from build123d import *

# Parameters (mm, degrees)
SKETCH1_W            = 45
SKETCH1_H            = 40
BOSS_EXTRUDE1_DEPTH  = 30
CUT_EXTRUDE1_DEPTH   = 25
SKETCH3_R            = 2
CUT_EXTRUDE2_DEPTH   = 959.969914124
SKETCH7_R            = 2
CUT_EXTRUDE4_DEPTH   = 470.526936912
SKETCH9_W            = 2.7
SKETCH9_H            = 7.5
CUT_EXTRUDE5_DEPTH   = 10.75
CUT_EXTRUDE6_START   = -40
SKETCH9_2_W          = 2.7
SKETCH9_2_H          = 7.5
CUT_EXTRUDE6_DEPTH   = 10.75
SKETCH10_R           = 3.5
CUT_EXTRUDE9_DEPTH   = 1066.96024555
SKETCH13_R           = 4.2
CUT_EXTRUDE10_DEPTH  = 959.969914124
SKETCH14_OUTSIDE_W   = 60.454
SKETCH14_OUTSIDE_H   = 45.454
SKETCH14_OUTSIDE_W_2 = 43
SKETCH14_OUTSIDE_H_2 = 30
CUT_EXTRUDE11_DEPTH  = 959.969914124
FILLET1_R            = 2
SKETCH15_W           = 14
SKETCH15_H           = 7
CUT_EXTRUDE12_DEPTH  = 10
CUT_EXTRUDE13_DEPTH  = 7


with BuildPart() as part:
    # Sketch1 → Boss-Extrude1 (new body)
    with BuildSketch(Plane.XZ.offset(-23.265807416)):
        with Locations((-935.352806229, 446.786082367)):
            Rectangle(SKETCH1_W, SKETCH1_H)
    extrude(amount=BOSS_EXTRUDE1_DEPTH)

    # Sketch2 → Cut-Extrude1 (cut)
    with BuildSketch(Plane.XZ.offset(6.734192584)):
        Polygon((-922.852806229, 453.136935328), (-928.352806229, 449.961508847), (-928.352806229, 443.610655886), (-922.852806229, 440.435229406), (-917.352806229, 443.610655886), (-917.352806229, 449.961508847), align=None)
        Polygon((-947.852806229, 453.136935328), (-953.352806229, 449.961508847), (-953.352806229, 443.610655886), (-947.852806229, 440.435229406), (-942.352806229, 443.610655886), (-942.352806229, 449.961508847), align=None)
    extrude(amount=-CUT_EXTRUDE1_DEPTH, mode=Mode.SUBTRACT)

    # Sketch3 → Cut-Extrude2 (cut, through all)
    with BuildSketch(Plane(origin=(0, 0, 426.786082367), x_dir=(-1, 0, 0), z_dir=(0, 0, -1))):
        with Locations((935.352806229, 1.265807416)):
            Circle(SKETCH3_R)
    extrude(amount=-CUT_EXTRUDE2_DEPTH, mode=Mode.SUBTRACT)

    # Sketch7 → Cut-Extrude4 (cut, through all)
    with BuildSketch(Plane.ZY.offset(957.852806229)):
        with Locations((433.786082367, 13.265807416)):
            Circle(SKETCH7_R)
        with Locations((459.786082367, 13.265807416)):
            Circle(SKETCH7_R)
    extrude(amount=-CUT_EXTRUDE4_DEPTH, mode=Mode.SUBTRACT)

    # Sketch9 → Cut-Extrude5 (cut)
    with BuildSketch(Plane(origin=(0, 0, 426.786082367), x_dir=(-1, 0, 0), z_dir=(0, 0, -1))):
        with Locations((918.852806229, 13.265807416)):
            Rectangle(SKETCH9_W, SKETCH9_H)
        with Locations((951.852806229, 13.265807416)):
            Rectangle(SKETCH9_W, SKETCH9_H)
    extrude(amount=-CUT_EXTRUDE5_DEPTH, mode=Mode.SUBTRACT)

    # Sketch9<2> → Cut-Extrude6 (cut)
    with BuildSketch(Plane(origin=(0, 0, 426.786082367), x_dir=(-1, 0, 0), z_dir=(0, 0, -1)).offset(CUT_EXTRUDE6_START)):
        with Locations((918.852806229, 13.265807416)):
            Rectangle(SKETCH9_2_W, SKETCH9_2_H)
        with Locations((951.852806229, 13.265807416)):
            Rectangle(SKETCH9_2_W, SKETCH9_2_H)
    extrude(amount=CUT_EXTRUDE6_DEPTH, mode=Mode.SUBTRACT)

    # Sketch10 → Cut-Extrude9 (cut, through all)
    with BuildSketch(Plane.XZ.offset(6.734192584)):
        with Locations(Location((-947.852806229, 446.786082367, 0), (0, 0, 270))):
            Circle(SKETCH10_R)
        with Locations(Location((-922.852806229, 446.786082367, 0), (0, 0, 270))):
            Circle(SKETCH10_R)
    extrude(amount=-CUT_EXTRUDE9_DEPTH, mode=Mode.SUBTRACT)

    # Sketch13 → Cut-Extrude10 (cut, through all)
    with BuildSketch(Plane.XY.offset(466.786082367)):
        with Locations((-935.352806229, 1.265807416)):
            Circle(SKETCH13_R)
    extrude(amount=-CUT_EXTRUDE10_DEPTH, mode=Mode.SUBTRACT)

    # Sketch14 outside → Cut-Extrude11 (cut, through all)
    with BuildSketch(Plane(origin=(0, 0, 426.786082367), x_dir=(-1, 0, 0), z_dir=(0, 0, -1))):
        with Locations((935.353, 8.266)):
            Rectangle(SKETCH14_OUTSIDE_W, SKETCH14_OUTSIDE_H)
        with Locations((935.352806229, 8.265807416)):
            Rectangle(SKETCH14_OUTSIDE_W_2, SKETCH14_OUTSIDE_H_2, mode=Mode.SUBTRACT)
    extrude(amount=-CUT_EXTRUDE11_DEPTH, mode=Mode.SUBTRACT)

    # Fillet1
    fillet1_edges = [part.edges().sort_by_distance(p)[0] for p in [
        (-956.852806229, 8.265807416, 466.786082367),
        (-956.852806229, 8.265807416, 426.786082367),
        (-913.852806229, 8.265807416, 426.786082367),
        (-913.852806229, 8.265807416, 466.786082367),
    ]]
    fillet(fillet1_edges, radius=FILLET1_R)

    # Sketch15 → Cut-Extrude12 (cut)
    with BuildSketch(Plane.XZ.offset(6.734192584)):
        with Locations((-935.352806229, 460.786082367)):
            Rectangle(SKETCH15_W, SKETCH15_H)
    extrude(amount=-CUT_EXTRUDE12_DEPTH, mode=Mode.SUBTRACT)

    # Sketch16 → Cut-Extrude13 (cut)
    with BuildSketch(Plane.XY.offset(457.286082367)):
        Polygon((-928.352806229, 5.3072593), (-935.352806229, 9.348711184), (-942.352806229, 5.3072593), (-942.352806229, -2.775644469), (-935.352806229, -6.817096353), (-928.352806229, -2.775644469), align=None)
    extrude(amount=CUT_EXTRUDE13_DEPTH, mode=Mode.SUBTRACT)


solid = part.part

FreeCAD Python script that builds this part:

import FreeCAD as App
import Part
import Sketcher
Q = App.Units.Quantity


def edges_at(feature, points):
    """Names of the edges that pass closest to the given points."""
    edges = feature.Shape.Edges
    near = lambda p: min(range(len(edges)), key=lambda i: edges[i].distToShape(Part.Vertex(*p))[0])
    return sorted({f"Edge{near(p) + 1}" for p in points})


def add_polygon(sketch, points):
    """Adds a closed chain of lines whose ends are joined by coincident constraints."""
    first, n = sketch.GeometryCount, len(points)
    for a, b in zip(points, points[1:] + points[:1]):
        sketch.addGeometry(Part.LineSegment(App.Vector(*a, 0), App.Vector(*b, 0)), False)
    for i in range(n):
        sketch.addConstraint(Sketcher.Constraint("Coincident", first + i, 2, first + (i + 1) % n, 1))

doc = App.newDocument("Part")
params = doc.addObject("Spreadsheet::Sheet", "Params")
for row, (alias, value) in enumerate([
    ("sketch1_width", "45 mm"),
    ("sketch1_height", "40 mm"),
    ("pad1_length", "30 mm"),
    ("pocket1_length", "25 mm"),
    ("sketch3_diameter", "4 mm"),
    ("sketch4_diameter", "4 mm"),
    ("sketch5_width", "2.7 mm"),
    ("sketch5_height", "7.5 mm"),
    ("pocket4_length", "10.75 mm"),
    ("sketch6_width", "2.7 mm"),
    ("sketch6_height", "7.5 mm"),
    ("pocket5_length", "10.75 mm"),
    ("sketch7_diameter", "7 mm"),
    ("sketch8_diameter", "8.4 mm"),
    ("sketch9_width", "43 mm"),
    ("sketch9_height", "30 mm"),
    ("fillet_radius", "2 mm"),
    ("sketch10_width", "14 mm"),
    ("sketch10_height", "7 mm"),
    ("pocket9_length", "10 mm"),
    ("pocket10_length", "7 mm"),
], start=1):
    params.set(f"A{row}", alias)
    params.set(f"B{row}", "=" + value)
    params.setAlias(f"B{row}", alias)

body = doc.addObject("PartDesign::Body", "Body")

# Sketch on XZ plane
sketch1 = doc.addObject("Sketcher::SketchObject", "Sketch")
body.addObject(sketch1)
sketch1.AttachmentSupport = (doc.XZ_Plane, [""])
sketch1.MapMode = "FlatFace"
sketch1.AttachmentOffset = App.Placement(App.Vector(0, 0, -23.265807), App.Rotation())
add_polygon(sketch1, [(-958, 467), (-958, 427), (-913, 427), (-913, 467)])  # lines 0-3
sketch1.addConstraint([
    Sketcher.Constraint("Vertical", 0),
    Sketcher.Constraint("Horizontal", 1),
    Sketcher.Constraint("Vertical", 2),
    Sketcher.Constraint("Horizontal", 3),
    Sketcher.Constraint("DistanceX", 1, 1, 1, 2, Q("45 mm")),
    Sketcher.Constraint("DistanceY", 0, 2, 0, 1, Q("40 mm")),
    Sketcher.Constraint("DistanceX", 0, 2, -1, 1, Q("957.852806 mm")),
    Sketcher.Constraint("DistanceY", -1, 1, 0, 2, Q("426.786082 mm")),
])
sketch1.setExpression("Constraints[8]", "Params.sketch1_width")
sketch1.setExpression("Constraints[9]", "Params.sketch1_height")
pad1 = doc.addObject("PartDesign::Pad", "Pad")
body.addObject(pad1)
pad1.Profile = sketch1
pad1.setExpression("Length", "Params.pad1_length")

# Sketch on XZ plane
sketch2 = doc.addObject("Sketcher::SketchObject", "Sketch001")
body.addObject(sketch2)
sketch2.AttachmentSupport = (doc.XZ_Plane, [""])
sketch2.MapMode = "FlatFace"
sketch2.AttachmentOffset = App.Placement(App.Vector(0, 0, 6.734193), App.Rotation())
add_polygon(sketch2, [(-923, 453), (-928, 450), (-928, 444), (-923, 440), (-917, 444), (-917, 450)])  # lines 0-5
add_polygon(sketch2, [(-948, 453), (-953, 450), (-953, 444), (-948, 440), (-942, 444), (-942, 450)])  # lines 6-11
sketch2.addConstraint([
    Sketcher.Constraint("Vertical", 1),
    Sketcher.Constraint("Vertical", 4),
    Sketcher.Constraint("Vertical", 7),
    Sketcher.Constraint("Vertical", 10),
    Sketcher.Constraint("Parallel", 0, 3),
    Sketcher.Constraint("Parallel", 2, 5),
    Sketcher.Constraint("Parallel", 3, 6),
    Sketcher.Constraint("Parallel", 5, 8),
    Sketcher.Constraint("Parallel", 6, 9),
    Sketcher.Constraint("Parallel", 8, 11),
    Sketcher.Constraint("Horizontal", 1, 2, 3, 2),
    Sketcher.Constraint("Horizontal", 0, 2, 4, 2),
    Sketcher.Constraint("Horizontal", 4, 2, 6, 2),
    Sketcher.Constraint("Horizontal", 3, 2, 7, 2),
    Sketcher.Constraint("Horizontal", 2, 2, 8, 2),
    Sketcher.Constraint("Horizontal", 7, 2, 9, 2),
    Sketcher.Constraint("Horizontal", 6, 2, 10, 2),
    Sketcher.Constraint("Vertical", 2, 2, 5, 2),
    Sketcher.Constraint("Angle", 0, Q("-150 deg")),
    Sketcher.Constraint("DistanceX", 1, 2, 3, 2, Q("11 mm")),
    Sketcher.Constraint("DistanceX", 6, 2, 0, 2, Q("25 mm")),
    Sketcher.Constraint("DistanceY", 1, 2, 1, 1, Q("6.350853 mm")),
    Sketcher.Constraint("DistanceY", -1, 1, 0, 2, Q("449.961509 mm")),
    Sketcher.Constraint("DistanceX", 0, 2, -1, 1, Q("928.352806 mm")),
])
pocket1 = doc.addObject("PartDesign::Pocket", "Pocket")
body.addObject(pocket1)
pocket1.Profile = sketch2
pocket1.setExpression("Length", "Params.pocket1_length")

# Sketch on XY plane
sketch3 = doc.addObject("Sketcher::SketchObject", "Sketch002")
body.addObject(sketch3)
sketch3.AttachmentSupport = (doc.XY_Plane, [""])
sketch3.MapMode = "FlatFace"
sketch3.AttachmentOffset = App.Placement(App.Vector(0, 0, 426.786082), App.Rotation())
sketch3.addGeometry(Part.Circle(App.Vector(-935.4, 1.3, 0), App.Vector(0, 0, 1), 2), False)
sketch3.addConstraint([
    Sketcher.Constraint("Diameter", 0, Q("4 mm")),
    Sketcher.Constraint("DistanceX", 0, 3, -1, 1, Q("935.352806 mm")),
    Sketcher.Constraint("DistanceY", -1, 1, 0, 3, Q("1.265807 mm")),
])
sketch3.setExpression("Constraints[0]", "Params.sketch3_diameter")
pocket2 = doc.addObject("PartDesign::Pocket", "Pocket001")
body.addObject(pocket2)
pocket2.Profile = sketch3
pocket2.Type = "ThroughAll"
pocket2.Reversed = True

# Sketch on YZ plane
sketch4 = doc.addObject("Sketcher::SketchObject", "Sketch003")
body.addObject(sketch4)
sketch4.AttachmentSupport = (doc.YZ_Plane, [""])
sketch4.MapMode = "FlatFace"
sketch4.AttachmentOffset = App.Placement(App.Vector(0, 0, -957.852806), App.Rotation())
sketch4.addGeometry([
    Part.Circle(App.Vector(13.3, 433.8, 0), App.Vector(0, 0, 1), 2),
    Part.Circle(App.Vector(13.3, 459.8, 0), App.Vector(0, 0, 1), 2),
], False)
sketch4.addConstraint([
    Sketcher.Constraint("Equal", 0, 1),
    Sketcher.Constraint("Vertical", 0, 3, 1, 3),
    Sketcher.Constraint("Diameter", 0, Q("4 mm")),
    Sketcher.Constraint("DistanceY", 0, 3, 1, 3, Q("26 mm")),
    Sketcher.Constraint("DistanceX", -1, 1, 0, 3, Q("13.265807 mm")),
    Sketcher.Constraint("DistanceY", -1, 1, 0, 3, Q("433.786082 mm")),
])
sketch4.setExpression("Constraints[2]", "Params.sketch4_diameter")
pocket3 = doc.addObject("PartDesign::Pocket", "Pocket002")
body.addObject(pocket3)
pocket3.Profile = sketch4
pocket3.Type = "ThroughAll"
pocket3.Reversed = True

# Sketch on XY plane
sketch5 = doc.addObject("Sketcher::SketchObject", "Sketch004")
body.addObject(sketch5)
sketch5.AttachmentSupport = (doc.XY_Plane, [""])
sketch5.MapMode = "FlatFace"
sketch5.AttachmentOffset = App.Placement(App.Vector(0, 0, 426.786082), App.Rotation())
add_polygon(sketch5, [(-917.5, 17), (-917.5, 9.5), (-920.2, 9.5), (-920.2, 17)])  # lines 0-3
add_polygon(sketch5, [(-950.5, 17), (-950.5, 9.5), (-953.2, 9.5), (-953.2, 17)])  # lines 4-7
sketch5.addConstraint([
    Sketcher.Constraint("Vertical", 0),
    Sketcher.Constraint("Horizontal", 1),
    Sketcher.Constraint("Vertical", 2),
    Sketcher.Constraint("Horizontal", 3),
    Sketcher.Constraint("Vertical", 4),
    Sketcher.Constraint("Horizontal", 5),
    Sketcher.Constraint("Vertical", 6),
    Sketcher.Constraint("Horizontal", 7),
    Sketcher.Constraint("Horizontal", 1, 2, 4, 2),
    Sketcher.Constraint("Horizontal", 3, 2, 6, 2),
    Sketcher.Constraint("Equal", 3, 5),
    Sketcher.Constraint("DistanceX", 1, 2, 1, 1, Q("2.7 mm")),
    Sketcher.Constraint("DistanceY", 0, 2, 0, 1, Q("7.5 mm")),
    Sketcher.Constraint("DistanceX", 4, 2, 0, 2, Q("33 mm")),
    Sketcher.Constraint("DistanceX", 0, 2, -1, 1, Q("917.502806 mm")),
    Sketcher.Constraint("DistanceY", -1, 1, 0, 2, Q("9.515807 mm")),
])
sketch5.setExpression("Constraints[19]", "Params.sketch5_width")
sketch5.setExpression("Constraints[20]", "Params.sketch5_height")
pocket4 = doc.addObject("PartDesign::Pocket", "Pocket003")
body.addObject(pocket4)
pocket4.Profile = sketch5
pocket4.setExpression("Length", "Params.pocket4_length")
pocket4.Reversed = True

# Sketch on XY plane
sketch6 = doc.addObject("Sketcher::SketchObject", "Sketch005")
body.addObject(sketch6)
sketch6.AttachmentSupport = (doc.XY_Plane, [""])
sketch6.MapMode = "FlatFace"
sketch6.AttachmentOffset = App.Placement(App.Vector(0, 0, 466.786082), App.Rotation())
add_polygon(sketch6, [(-917.5, 17), (-917.5, 9.5), (-920.2, 9.5), (-920.2, 17)])  # lines 0-3
add_polygon(sketch6, [(-950.5, 17), (-950.5, 9.5), (-953.2, 9.5), (-953.2, 17)])  # lines 4-7
sketch6.addConstraint([
    Sketcher.Constraint("Vertical", 0),
    Sketcher.Constraint("Horizontal", 1),
    Sketcher.Constraint("Vertical", 2),
    Sketcher.Constraint("Horizontal", 3),
    Sketcher.Constraint("Vertical", 4),
    Sketcher.Constraint("Horizontal", 5),
    Sketcher.Constraint("Vertical", 6),
    Sketcher.Constraint("Horizontal", 7),
    Sketcher.Constraint("Horizontal", 1, 2, 4, 2),
    Sketcher.Constraint("Horizontal", 3, 2, 6, 2),
    Sketcher.Constraint("Equal", 3, 5),
    Sketcher.Constraint("DistanceX", 1, 2, 1, 1, Q("2.7 mm")),
    Sketcher.Constraint("DistanceY", 0, 2, 0, 1, Q("7.5 mm")),
    Sketcher.Constraint("DistanceX", 4, 2, 0, 2, Q("33 mm")),
    Sketcher.Constraint("DistanceX", 0, 2, -1, 1, Q("917.502806 mm")),
    Sketcher.Constraint("DistanceY", -1, 1, 0, 2, Q("9.515807 mm")),
])
sketch6.setExpression("Constraints[19]", "Params.sketch6_width")
sketch6.setExpression("Constraints[20]", "Params.sketch6_height")
pocket5 = doc.addObject("PartDesign::Pocket", "Pocket004")
body.addObject(pocket5)
pocket5.Profile = sketch6
pocket5.setExpression("Length", "Params.pocket5_length")

# Sketch on XZ plane
sketch7 = doc.addObject("Sketcher::SketchObject", "Sketch006")
body.addObject(sketch7)
sketch7.AttachmentSupport = (doc.XZ_Plane, [""])
sketch7.MapMode = "FlatFace"
sketch7.AttachmentOffset = App.Placement(App.Vector(0, 0, 6.734193), App.Rotation())
sketch7.addGeometry([
    Part.Circle(App.Vector(-947.9, 446.8, 0), App.Vector(0, 0, 1), 3.5),
    Part.Circle(App.Vector(-922.9, 446.8, 0), App.Vector(0, 0, 1), 3.5),
], False)
sketch7.addConstraint([
    Sketcher.Constraint("Equal", 0, 1),
    Sketcher.Constraint("Horizontal", 0, 3, 1, 3),
    Sketcher.Constraint("Diameter", 0, Q("7 mm")),
    Sketcher.Constraint("DistanceX", 0, 3, 1, 3, Q("25 mm")),
    Sketcher.Constraint("DistanceX", 0, 3, -1, 1, Q("947.852806 mm")),
    Sketcher.Constraint("DistanceY", -1, 1, 0, 3, Q("446.786082 mm")),
])
sketch7.setExpression("Constraints[2]", "Params.sketch7_diameter")
pocket6 = doc.addObject("PartDesign::Pocket", "Pocket005")
body.addObject(pocket6)
pocket6.Profile = sketch7
pocket6.Type = "ThroughAll"

# Sketch on XY plane
sketch8 = doc.addObject("Sketcher::SketchObject", "Sketch007")
body.addObject(sketch8)
sketch8.AttachmentSupport = (doc.XY_Plane, [""])
sketch8.MapMode = "FlatFace"
sketch8.AttachmentOffset = App.Placement(App.Vector(0, 0, 466.786082), App.Rotation())
sketch8.addGeometry(Part.Circle(App.Vector(-935.4, 1.3, 0), App.Vector(0, 0, 1), 4.2), False)
sketch8.addConstraint([
    Sketcher.Constraint("Diameter", 0, Q("8.4 mm")),
    Sketcher.Constraint("DistanceX", 0, 3, -1, 1, Q("935.352806 mm")),
    Sketcher.Constraint("DistanceY", -1, 1, 0, 3, Q("1.265807 mm")),
])
sketch8.setExpression("Constraints[0]", "Params.sketch8_diameter")
pocket7 = doc.addObject("PartDesign::Pocket", "Pocket006")
body.addObject(pocket7)
pocket7.Profile = sketch8
pocket7.Type = "ThroughAll"

# Sketch on XY plane
sketch9 = doc.addObject("Sketcher::SketchObject", "Sketch008")
body.addObject(sketch9)
sketch9.AttachmentSupport = (doc.XY_Plane, [""])
sketch9.MapMode = "FlatFace"
sketch9.AttachmentOffset = App.Placement(App.Vector(0, 0, 426.786082), App.Rotation())
add_polygon(sketch9, [(-905, 31), (-905, -14), (-966, -14), (-966, 31)])  # lines 0-3
add_polygon(sketch9, [(-957, -7), (-914, -7), (-914, 23), (-957, 23)])  # lines 4-7
sketch9.addConstraint([
    Sketcher.Constraint("Vertical", 0),
    Sketcher.Constraint("Horizontal", 1),
    Sketcher.Constraint("Vertical", 2),
    Sketcher.Constraint("Horizontal", 3),
    Sketcher.Constraint("Horizontal", 4),
    Sketcher.Constraint("Vertical", 5),
    Sketcher.Constraint("Horizontal", 6),
    Sketcher.Constraint("Vertical", 7),
    Sketcher.Constraint("DistanceX", 4, 1, 4, 2, Q("43 mm")),
    Sketcher.Constraint("DistanceY", 5, 1, 5, 2, Q("30 mm")),
    Sketcher.Constraint("DistanceX", 1, 2, 1, 1, Q("60.454 mm")),
    Sketcher.Constraint("DistanceY", 0, 2, 0, 1, Q("45.454 mm")),
    Sketcher.Constraint("DistanceX", 1, 2, -1, 1, Q("965.58 mm")),
    Sketcher.Constraint("DistanceY", 0, 2, -1, 1, Q("14.461 mm")),
    Sketcher.Constraint("DistanceX", 4, 2, -1, 1, Q("913.852806 mm")),
    Sketcher.Constraint("DistanceY", 4, 2, -1, 1, Q("6.734193 mm")),
])
sketch9.setExpression("Constraints[16]", "Params.sketch9_width")
sketch9.setExpression("Constraints[17]", "Params.sketch9_height")
pocket8 = doc.addObject("PartDesign::Pocket", "Pocket007")
body.addObject(pocket8)
pocket8.Profile = sketch9
pocket8.Type = "ThroughAll"
pocket8.Reversed = True
doc.recompute()

fillet = doc.addObject("PartDesign::Fillet", "Fillet")
body.addObject(fillet)
fillet.Base = (pocket8, edges_at(pocket8, [
    (-956.853, 8.266, 466.786),
    (-956.853, 8.266, 426.786),
    (-913.853, 8.266, 426.786),
    (-913.853, 8.266, 466.786),
]))
fillet.setExpression("Radius", "Params.fillet_radius")

# Sketch on XZ plane
sketch10 = doc.addObject("Sketcher::SketchObject", "Sketch009")
body.addObject(sketch10)
sketch10.AttachmentSupport = (doc.XZ_Plane, [""])
sketch10.MapMode = "FlatFace"
sketch10.AttachmentOffset = App.Placement(App.Vector(0, 0, 6.734193), App.Rotation())
add_polygon(sketch10, [(-942, 464), (-942, 457), (-928, 457), (-928, 464)])  # lines 0-3
sketch10.addConstraint([
    Sketcher.Constraint("Vertical", 0),
    Sketcher.Constraint("Horizontal", 1),
    Sketcher.Constraint("Vertical", 2),
    Sketcher.Constraint("Horizontal", 3),
    Sketcher.Constraint("DistanceX", 1, 1, 1, 2, Q("14 mm")),
    Sketcher.Constraint("DistanceY", 0, 2, 0, 1, Q("7 mm")),
    Sketcher.Constraint("DistanceX", 0, 2, -1, 1, Q("942.352806 mm")),
    Sketcher.Constraint("DistanceY", -1, 1, 0, 2, Q("457.286082 mm")),
])
sketch10.setExpression("Constraints[8]", "Params.sketch10_width")
sketch10.setExpression("Constraints[9]", "Params.sketch10_height")
pocket9 = doc.addObject("PartDesign::Pocket", "Pocket008")
body.addObject(pocket9)
pocket9.Profile = sketch10
pocket9.setExpression("Length", "Params.pocket9_length")

# Sketch on XY plane
sketch11 = doc.addObject("Sketcher::SketchObject", "Sketch010")
body.addObject(sketch11)
sketch11.AttachmentSupport = (doc.XY_Plane, [""])
sketch11.MapMode = "FlatFace"
sketch11.AttachmentOffset = App.Placement(App.Vector(0, 0, 457.286082), App.Rotation())
add_polygon(sketch11, [(-928, 5), (-935, 9), (-942, 5), (-942, -3), (-935, -7), (-928, -3)])  # lines 0-5
sketch11.addConstraint([
    Sketcher.Constraint("Vertical", 2),
    Sketcher.Constraint("Vertical", 5),
    Sketcher.Constraint("Parallel", 0, 3),
    Sketcher.Constraint("Parallel", 1, 4),
    Sketcher.Constraint("Horizontal", 2, 2, 4, 2),
    Sketcher.Constraint("Horizontal", 1, 2, 5, 2),
    Sketcher.Constraint("Vertical", 0, 2, 3, 2),
    Sketcher.Constraint("Angle", 0, Q("150 deg")),
    Sketcher.Constraint("DistanceX", 1, 2, 0, 2, Q("7 mm")),
    Sketcher.Constraint("DistanceY", 2, 2, 2, 1, Q("8.082904 mm")),
    Sketcher.Constraint("DistanceY", -1, 1, 0, 2, Q("9.348711 mm")),
    Sketcher.Constraint("DistanceX", 0, 2, -1, 1, Q("935.352806 mm")),
])
pocket10 = doc.addObject("PartDesign::Pocket", "Pocket009")
body.addObject(pocket10)
pocket10.Profile = sketch11
pocket10.setExpression("Length", "Params.pocket10_length")
pocket10.Reversed = True

doc.recompute()
